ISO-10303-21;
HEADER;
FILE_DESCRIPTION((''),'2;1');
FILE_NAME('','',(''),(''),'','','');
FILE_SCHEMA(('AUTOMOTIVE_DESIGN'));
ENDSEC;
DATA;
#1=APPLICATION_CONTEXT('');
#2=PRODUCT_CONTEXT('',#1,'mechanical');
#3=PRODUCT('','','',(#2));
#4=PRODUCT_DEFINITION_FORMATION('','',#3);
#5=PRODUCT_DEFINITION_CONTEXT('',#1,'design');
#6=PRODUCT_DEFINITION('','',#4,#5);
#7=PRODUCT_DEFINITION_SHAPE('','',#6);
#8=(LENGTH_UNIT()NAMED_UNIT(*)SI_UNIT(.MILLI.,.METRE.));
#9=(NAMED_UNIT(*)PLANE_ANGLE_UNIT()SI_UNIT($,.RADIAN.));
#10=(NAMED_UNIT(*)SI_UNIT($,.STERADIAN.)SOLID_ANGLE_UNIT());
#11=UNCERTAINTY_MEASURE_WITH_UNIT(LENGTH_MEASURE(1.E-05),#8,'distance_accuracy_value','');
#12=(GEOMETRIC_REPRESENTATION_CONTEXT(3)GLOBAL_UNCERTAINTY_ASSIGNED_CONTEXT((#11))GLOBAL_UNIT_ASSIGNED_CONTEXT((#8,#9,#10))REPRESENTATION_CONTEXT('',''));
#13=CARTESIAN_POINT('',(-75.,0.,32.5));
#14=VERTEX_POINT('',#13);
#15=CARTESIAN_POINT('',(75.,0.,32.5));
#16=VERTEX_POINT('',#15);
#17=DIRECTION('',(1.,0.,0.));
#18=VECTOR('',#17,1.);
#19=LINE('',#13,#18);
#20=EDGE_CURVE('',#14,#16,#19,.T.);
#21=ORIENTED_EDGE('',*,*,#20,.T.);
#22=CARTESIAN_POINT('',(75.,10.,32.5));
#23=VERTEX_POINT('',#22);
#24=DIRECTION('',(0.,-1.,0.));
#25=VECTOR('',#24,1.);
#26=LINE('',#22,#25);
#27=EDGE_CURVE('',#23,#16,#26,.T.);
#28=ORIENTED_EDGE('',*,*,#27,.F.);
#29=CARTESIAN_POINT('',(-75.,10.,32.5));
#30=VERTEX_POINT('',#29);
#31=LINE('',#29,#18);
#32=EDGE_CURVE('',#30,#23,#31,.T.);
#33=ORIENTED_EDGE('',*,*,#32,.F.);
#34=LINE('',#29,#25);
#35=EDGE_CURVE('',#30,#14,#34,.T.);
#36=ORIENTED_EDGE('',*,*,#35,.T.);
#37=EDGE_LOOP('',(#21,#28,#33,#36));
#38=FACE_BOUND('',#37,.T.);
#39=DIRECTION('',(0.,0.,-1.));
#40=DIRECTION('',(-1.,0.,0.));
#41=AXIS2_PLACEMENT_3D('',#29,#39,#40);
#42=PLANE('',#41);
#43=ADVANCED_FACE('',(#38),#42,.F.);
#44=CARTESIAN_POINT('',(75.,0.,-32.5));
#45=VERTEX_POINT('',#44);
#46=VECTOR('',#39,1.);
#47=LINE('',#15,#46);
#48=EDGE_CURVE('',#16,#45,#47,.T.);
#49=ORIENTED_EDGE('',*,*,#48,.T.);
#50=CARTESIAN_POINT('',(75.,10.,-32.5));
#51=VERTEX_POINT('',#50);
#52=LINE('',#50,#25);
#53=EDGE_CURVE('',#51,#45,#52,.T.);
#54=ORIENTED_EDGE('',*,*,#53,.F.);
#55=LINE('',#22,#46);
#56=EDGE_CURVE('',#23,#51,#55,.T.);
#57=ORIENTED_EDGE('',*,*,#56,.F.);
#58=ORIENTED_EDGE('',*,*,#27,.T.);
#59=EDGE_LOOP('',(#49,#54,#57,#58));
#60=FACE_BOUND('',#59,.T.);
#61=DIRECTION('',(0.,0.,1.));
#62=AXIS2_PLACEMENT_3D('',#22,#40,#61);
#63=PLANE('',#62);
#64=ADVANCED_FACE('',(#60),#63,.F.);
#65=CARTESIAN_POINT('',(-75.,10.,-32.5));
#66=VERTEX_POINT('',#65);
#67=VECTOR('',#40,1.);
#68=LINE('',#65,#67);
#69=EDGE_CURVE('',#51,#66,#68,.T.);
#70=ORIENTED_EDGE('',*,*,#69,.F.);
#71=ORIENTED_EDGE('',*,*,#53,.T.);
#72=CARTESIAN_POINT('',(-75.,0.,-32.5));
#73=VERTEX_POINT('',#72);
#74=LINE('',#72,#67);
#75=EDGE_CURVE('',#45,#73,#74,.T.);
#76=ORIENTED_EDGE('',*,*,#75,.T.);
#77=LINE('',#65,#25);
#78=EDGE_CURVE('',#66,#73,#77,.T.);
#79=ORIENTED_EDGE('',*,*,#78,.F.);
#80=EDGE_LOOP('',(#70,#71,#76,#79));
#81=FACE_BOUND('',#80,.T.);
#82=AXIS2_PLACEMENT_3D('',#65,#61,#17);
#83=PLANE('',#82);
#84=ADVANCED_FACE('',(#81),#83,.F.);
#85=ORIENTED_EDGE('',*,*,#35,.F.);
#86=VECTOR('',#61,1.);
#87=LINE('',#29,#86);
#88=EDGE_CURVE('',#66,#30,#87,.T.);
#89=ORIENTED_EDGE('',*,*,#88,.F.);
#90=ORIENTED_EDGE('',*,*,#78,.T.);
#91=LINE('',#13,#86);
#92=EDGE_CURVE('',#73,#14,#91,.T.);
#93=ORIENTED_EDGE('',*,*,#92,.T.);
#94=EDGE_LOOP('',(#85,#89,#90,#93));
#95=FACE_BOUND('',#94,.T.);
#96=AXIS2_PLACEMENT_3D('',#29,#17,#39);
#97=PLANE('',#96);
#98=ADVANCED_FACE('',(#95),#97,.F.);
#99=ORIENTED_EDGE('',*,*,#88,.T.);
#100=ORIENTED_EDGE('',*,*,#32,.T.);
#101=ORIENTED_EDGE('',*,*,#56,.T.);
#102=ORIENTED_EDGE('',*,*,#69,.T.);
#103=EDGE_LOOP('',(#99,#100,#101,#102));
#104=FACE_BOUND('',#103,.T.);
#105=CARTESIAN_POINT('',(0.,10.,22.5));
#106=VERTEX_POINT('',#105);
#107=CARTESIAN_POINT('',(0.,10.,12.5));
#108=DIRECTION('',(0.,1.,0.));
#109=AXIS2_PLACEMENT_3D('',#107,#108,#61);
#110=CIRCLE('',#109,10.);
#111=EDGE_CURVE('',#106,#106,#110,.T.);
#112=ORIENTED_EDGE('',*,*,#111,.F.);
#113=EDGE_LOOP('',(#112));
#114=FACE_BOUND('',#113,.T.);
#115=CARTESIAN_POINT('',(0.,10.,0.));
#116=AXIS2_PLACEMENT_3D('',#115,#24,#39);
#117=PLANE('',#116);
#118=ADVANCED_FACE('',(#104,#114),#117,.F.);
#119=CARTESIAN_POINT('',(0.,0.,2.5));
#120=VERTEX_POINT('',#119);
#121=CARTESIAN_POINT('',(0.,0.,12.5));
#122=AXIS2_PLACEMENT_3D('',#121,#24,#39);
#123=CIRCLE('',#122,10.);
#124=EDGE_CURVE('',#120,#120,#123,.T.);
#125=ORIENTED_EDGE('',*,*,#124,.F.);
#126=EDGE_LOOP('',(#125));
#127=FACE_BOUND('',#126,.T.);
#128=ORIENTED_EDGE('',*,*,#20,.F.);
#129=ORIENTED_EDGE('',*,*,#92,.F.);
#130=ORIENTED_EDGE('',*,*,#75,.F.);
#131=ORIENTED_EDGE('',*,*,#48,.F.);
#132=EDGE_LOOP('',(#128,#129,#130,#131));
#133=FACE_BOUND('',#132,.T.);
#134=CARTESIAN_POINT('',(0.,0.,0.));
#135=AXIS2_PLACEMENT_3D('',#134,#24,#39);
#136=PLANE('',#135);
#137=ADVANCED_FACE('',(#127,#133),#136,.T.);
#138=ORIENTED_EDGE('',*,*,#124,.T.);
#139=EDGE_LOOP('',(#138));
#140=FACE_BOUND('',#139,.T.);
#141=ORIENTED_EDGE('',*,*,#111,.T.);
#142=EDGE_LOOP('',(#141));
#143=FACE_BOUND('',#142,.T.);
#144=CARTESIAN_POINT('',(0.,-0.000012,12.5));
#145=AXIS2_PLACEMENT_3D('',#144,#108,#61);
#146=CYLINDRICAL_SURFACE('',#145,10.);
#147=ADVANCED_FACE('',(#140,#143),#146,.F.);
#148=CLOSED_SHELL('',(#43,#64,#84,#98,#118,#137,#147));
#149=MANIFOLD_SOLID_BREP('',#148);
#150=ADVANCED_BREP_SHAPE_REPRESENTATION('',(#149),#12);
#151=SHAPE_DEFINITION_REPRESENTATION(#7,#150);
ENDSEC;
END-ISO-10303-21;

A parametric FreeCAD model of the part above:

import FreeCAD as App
import Part
import Sketcher
Q = App.Units.Quantity

doc = App.newDocument("Part")
body = doc.addObject("PartDesign::Body", "Body")

# Sketch on XZ plane
sketch1 = doc.addObject("Sketcher::SketchObject", "Sketch")
body.addObject(sketch1)
sketch1.AttachmentSupport = (doc.XZ_Plane, [""])
sketch1.MapMode = "FlatFace"
sketch1.addGeometry([
    Part.LineSegment(App.Vector(-75, -32, 0), App.Vector(-75, 32, 0)),
    Part.LineSegment(App.Vector(-75, 32, 0), App.Vector(75, 32, 0)),
    Part.LineSegment(App.Vector(75, 32, 0), App.Vector(75, -32, 0)),
    Part.LineSegment(App.Vector(75, -32, 0), App.Vector(-75, -32, 0)),
], False)
sketch1.addConstraint([
    Sketcher.Constraint("Coincident", 0, 2, 1, 1),
    Sketcher.Constraint("Coincident", 1, 2, 2, 1),
    Sketcher.Constraint("Coincident", 2, 2, 3, 1),
    Sketcher.Constraint("Coincident", 3, 2, 0, 1),
    Sketcher.Constraint("Vertical", 0),
    Sketcher.Constraint("Horizontal", 1),
    Sketcher.Constraint("Vertical", 2),
    Sketcher.Constraint("Horizontal", 3),
    Sketcher.Constraint("Symmetric", 0, 2, 2, 2, -1, 1),
    Sketcher.Constraint("DistanceX", 1, 1, 1, 2, Q("150 mm")),
    Sketcher.Constraint("DistanceY", 0, 1, 0, 2, Q("65 mm")),
])
pad1 = doc.addObject("PartDesign::Pad", "Pad")
body.addObject(pad1)
pad1.Profile = sketch1
pad1.Length = 10
pad1.Reversed = True

# Sketch on XZ plane
sketch2 = doc.addObject("Sketcher::SketchObject", "Sketch001")
body.addObject(sketch2)
sketch2.AttachmentSupport = (doc.XZ_Plane, [""])
sketch2.MapMode = "FlatFace"
sketch2.addGeometry(Part.Circle(App.Vector(0, 12, 0), App.Vector(0, 0, 1), 10), False)
sketch2.addConstraint([
    Sketcher.Constraint("PointOnObject", 0, 3, -2),
    Sketcher.Constraint("Diameter", 0, Q("20 mm")),
    Sketcher.Constraint("DistanceY", -1, 1, 0, 3, Q("12.5 mm")),
])
pocket1 = doc.addObject("PartDesign::Pocket", "Pocket")
body.addObject(pocket1)
pocket1.Profile = sketch2
pocket1.Type = "ThroughAll"
pocket1.Midplane = True

doc.recompute()
